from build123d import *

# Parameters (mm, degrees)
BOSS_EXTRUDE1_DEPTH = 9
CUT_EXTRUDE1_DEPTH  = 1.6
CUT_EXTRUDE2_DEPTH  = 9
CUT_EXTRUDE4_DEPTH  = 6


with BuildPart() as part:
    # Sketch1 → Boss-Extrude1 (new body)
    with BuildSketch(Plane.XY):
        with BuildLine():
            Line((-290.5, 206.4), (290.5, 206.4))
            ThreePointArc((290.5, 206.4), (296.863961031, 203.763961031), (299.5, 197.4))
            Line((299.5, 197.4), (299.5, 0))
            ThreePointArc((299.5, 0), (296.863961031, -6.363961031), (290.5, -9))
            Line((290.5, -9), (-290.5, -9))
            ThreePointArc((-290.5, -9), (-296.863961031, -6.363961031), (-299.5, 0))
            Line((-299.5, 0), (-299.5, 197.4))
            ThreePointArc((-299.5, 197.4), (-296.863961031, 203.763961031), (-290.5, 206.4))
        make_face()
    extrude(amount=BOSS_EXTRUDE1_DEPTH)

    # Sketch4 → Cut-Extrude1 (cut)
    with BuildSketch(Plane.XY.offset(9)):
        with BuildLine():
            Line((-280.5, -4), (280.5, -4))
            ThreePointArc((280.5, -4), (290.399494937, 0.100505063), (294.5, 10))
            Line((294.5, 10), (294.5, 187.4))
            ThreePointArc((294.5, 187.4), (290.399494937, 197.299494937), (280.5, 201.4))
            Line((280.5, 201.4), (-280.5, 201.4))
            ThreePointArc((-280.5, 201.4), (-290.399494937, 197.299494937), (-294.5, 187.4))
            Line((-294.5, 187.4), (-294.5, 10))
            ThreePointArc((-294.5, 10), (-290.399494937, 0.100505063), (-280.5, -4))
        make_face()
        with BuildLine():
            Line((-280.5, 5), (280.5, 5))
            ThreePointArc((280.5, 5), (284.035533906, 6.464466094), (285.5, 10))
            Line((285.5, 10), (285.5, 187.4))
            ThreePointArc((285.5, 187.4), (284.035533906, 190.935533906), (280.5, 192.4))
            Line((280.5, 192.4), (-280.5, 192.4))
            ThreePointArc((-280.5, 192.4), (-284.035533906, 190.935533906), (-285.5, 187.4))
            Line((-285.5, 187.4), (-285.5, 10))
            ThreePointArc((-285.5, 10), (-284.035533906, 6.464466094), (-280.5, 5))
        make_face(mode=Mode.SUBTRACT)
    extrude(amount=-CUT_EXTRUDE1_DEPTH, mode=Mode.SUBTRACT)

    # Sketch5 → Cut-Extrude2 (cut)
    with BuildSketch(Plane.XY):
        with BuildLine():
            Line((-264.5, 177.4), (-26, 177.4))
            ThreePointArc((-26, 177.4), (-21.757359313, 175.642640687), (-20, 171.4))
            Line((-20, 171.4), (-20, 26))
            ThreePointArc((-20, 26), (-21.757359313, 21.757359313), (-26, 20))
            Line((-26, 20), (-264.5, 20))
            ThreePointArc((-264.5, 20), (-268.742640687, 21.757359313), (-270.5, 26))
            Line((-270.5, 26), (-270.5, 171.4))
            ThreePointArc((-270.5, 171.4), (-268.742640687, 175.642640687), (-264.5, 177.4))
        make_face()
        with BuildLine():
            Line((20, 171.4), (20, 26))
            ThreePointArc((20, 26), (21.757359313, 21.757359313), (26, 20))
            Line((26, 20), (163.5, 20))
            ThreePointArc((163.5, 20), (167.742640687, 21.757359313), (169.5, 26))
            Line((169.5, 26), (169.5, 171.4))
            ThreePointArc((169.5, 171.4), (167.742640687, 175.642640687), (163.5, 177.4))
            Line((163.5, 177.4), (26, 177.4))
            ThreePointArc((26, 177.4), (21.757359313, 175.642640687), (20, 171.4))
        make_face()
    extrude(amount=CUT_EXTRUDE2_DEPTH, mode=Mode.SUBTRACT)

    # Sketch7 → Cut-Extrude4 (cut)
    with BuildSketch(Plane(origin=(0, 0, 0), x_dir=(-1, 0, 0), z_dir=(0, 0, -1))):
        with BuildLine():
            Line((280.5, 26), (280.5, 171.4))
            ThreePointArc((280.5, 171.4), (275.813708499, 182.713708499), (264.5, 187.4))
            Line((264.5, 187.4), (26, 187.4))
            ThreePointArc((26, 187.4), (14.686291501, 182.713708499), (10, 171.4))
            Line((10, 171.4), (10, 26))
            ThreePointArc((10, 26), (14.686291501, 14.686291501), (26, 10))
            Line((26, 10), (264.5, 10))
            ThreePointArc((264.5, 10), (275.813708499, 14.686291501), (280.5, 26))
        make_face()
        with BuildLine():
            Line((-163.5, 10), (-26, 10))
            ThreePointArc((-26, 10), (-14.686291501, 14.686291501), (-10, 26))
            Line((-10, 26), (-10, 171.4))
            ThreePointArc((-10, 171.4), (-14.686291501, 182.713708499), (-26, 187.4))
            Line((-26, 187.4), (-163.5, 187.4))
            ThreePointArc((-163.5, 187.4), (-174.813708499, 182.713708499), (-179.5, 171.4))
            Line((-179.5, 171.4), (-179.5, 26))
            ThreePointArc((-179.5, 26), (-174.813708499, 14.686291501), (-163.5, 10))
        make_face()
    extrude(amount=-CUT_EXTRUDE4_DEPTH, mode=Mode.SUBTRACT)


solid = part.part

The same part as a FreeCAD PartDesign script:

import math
import FreeCAD as App
import Part
import Sketcher
from FreeCAD import Vector
Q = App.Units.Quantity

doc = App.newDocument("Part")
body = doc.addObject("PartDesign::Body", "Body")

# Sketch on XY plane
sketch1 = body.newObject("Sketcher::SketchObject", "Sketch")
sketch1.AttachmentSupport = (doc.getObject("XY_Plane"), [""])
sketch1.MapMode = "FlatFace"
sketch1.addGeometry(Part.LineSegment(Vector(290.5, 206.4, 0), Vector(-290.5, 206.4, 0)), False)
sketch1.addGeometry(Part.ArcOfCircle(Part.Circle(Vector(-290.5, 197.4, 0), Vector(0, 0, 1), 9), math.radians(90), math.radians(180)), False)
sketch1.addGeometry(Part.LineSegment(Vector(-299.5, 197.4, 0), Vector(-299.5, 0, 0)), False)
sketch1.addGeometry(Part.ArcOfCircle(Part.Circle(Vector(-290.5, 0, 0), Vector(0, 0, 1), 9), math.radians(180), math.radians(270)), False)
sketch1.addGeometry(Part.LineSegment(Vector(-290.5, -9, 0), Vector(290.5, -9, 0)), False)
sketch1.addGeometry(Part.ArcOfCircle(Part.Circle(Vector(290.5, 0, 0), Vector(0, 0, 1), 9), math.radians(-90), math.radians(0)), False)
sketch1.addGeometry(Part.LineSegment(Vector(299.5, 0, 0), Vector(299.5, 197.4, 0)), False)
sketch1.addGeometry(Part.ArcOfCircle(Part.Circle(Vector(290.5, 197.4, 0), Vector(0, 0, 1), 9), math.radians(0), math.radians(90)), False)
sketch1.addConstraint(Sketcher.Constraint("Tangent", 0, 2, 1, 1))
sketch1.addConstraint(Sketcher.Constraint("Tangent", 1, 2, 2, 1))
sketch1.addConstraint(Sketcher.Constraint("Tangent", 2, 2, 3, 1))
sketch1.addConstraint(Sketcher.Constraint("Tangent", 3, 2, 4, 1))
sketch1.addConstraint(Sketcher.Constraint("Tangent", 4, 2, 5, 1))
sketch1.addConstraint(Sketcher.Constraint("Tangent", 5, 2, 6, 1))
sketch1.addConstraint(Sketcher.Constraint("Tangent", 6, 2, 7, 1))
sketch1.addConstraint(Sketcher.Constraint("Tangent", 7, 2, 0, 1))
sketch1.addConstraint(Sketcher.Constraint("Horizontal", 0))
sketch1.addConstraint(Sketcher.Constraint("Vertical", 2))
sketch1.addConstraint(Sketcher.Constraint("Horizontal", 4))
sketch1.addConstraint(Sketcher.Constraint("Vertical", 6))
sketch1.addConstraint(Sketcher.Constraint("Equal", 1, 3))
sketch1.addConstraint(Sketcher.Constraint("Equal", 3, 5))
sketch1.addConstraint(Sketcher.Constraint("Equal", 5, 7))
sketch1.addConstraint(Sketcher.Constraint("Symmetric", 3, 3, 5, 3, -1, 1))
sketch1.addConstraint(Sketcher.Constraint("Radius", 1, Q("9 mm")))
sketch1.addConstraint(Sketcher.Constraint("DistanceX", 0, 2, 0, 1, Q("581 mm")))
sketch1.addConstraint(Sketcher.Constraint("DistanceY", 2, 2, 2, 1, Q("197.4 mm")))
pad1 = body.newObject("PartDesign::Pad", "Pad")
pad1.Profile = sketch1
pad1.Length = 9

# Sketch on XY plane
sketch2 = body.newObject("Sketcher::SketchObject", "Sketch001")
sketch2.AttachmentSupport = (doc.getObject("XY_Plane"), [""])
sketch2.MapMode = "FlatFace"
sketch2.AttachmentOffset = App.Placement(Vector(0, 0, 9), App.Rotation())
sketch2.addGeometry(Part.LineSegment(Vector(-280.5, -4, 0), Vector(280.5, -4, 0)), False)
sketch2.addGeometry(Part.ArcOfCircle(Part.Circle(Vector(280.5, 10, 0), Vector(0, 0, 1), 14), math.radians(-90), math.radians(0)), False)
sketch2.addGeometry(Part.LineSegment(Vector(294.5, 10, 0), Vector(294.5, 187.4, 0)), False)
sketch2.addGeometry(Part.ArcOfCircle(Part.Circle(Vector(280.5, 187.4, 0), Vector(0, 0, 1), 14), math.radians(0), math.radians(90)), False)
sketch2.addGeometry(Part.LineSegment(Vector(280.5, 201.4, 0), Vector(-280.5, 201.4, 0)), False)
sketch2.addGeometry(Part.ArcOfCircle(Part.Circle(Vector(-280.5, 187.4, 0), Vector(0, 0, 1), 14), math.radians(90), math.radians(180)), False)
sketch2.addGeometry(Part.LineSegment(Vector(-294.5, 187.4, 0), Vector(-294.5, 10, 0)), False)
sketch2.addGeometry(Part.ArcOfCircle(Part.Circle(Vector(-280.5, 10, 0), Vector(0, 0, 1), 14), math.radians(180), math.radians(270)), False)
sketch2.addGeometry(Part.LineSegment(Vector(280.5, 5, 0), Vector(-280.5, 5, 0)), False)
sketch2.addGeometry(Part.ArcOfCircle(Part.Circle(Vector(-280.5, 10, 0), Vector(0, 0, 1), 5), math.radians(180), math.radians(270)), False)
sketch2.addGeometry(Part.LineSegment(Vector(-285.5, 10, 0), Vector(-285.5, 187.4, 0)), False)
sketch2.addGeometry(Part.ArcOfCircle(Part.Circle(Vector(-280.5, 187.4, 0), Vector(0, 0, 1), 5), math.radians(90), math.radians(180)), False)
sketch2.addGeometry(Part.LineSegment(Vector(-280.5, 192.4, 0), Vector(280.5, 192.4, 0)), False)
sketch2.addGeometry(Part.ArcOfCircle(Part.Circle(Vector(280.5, 187.4, 0), Vector(0, 0, 1), 5), math.radians(0), math.radians(90)), False)
sketch2.addGeometry(Part.LineSegment(Vector(285.5, 187.4, 0), Vector(285.5, 10, 0)), False)
sketch2.addGeometry(Part.ArcOfCircle(Part.Circle(Vector(280.5, 10, 0), Vector(0, 0, 1), 5), math.radians(-90), math.radians(0)), False)
sketch2.addConstraint(Sketcher.Constraint("Tangent", 0, 2, 1, 1))
sketch2.addConstraint(Sketcher.Constraint("Tangent", 1, 2, 2, 1))
sketch2.addConstraint(Sketcher.Constraint("Tangent", 2, 2, 3, 1))
sketch2.addConstraint(Sketcher.Constraint("Tangent", 3, 2, 4, 1))
sketch2.addConstraint(Sketcher.Constraint("Tangent", 4, 2, 5, 1))
sketch2.addConstraint(Sketcher.Constraint("Tangent", 5, 2, 6, 1))
sketch2.addConstraint(Sketcher.Constraint("Tangent", 6, 2, 7, 1))
sketch2.addConstraint(Sketcher.Constraint("Tangent", 7, 2, 0, 1))
sketch2.addConstraint(Sketcher.Constraint("Tangent", 8, 2, 9, 2))
sketch2.addConstraint(Sketcher.Constraint("Tangent", 9, 1, 10, 1))
sketch2.addConstraint(Sketcher.Constraint("Tangent", 10, 2, 11, 2))
sketch2.addConstraint(Sketcher.Constraint("Tangent", 11, 1, 12, 1))
sketch2.addConstraint(Sketcher.Constraint("Tangent", 12, 2, 13, 2))
sketch2.addConstraint(Sketcher.Constraint("Tangent", 13, 1, 14, 1))
sketch2.addConstraint(Sketcher.Constraint("Tangent", 14, 2, 15, 2))
sketch2.addConstraint(Sketcher.Constraint("Tangent", 15, 1, 8, 1))
sketch2.addConstraint(Sketcher.Constraint("Horizontal", 0))
sketch2.addConstraint(Sketcher.Constraint("Vertical", 2))
sketch2.addConstraint(Sketcher.Constraint("Horizontal", 4))
sketch2.addConstraint(Sketcher.Constraint("Vertical", 6))
sketch2.addConstraint(Sketcher.Constraint("Horizontal", 8))
sketch2.addConstraint(Sketcher.Constraint("Vertical", 10))
sketch2.addConstraint(Sketcher.Constraint("Horizontal", 12))
sketch2.addConstraint(Sketcher.Constraint("Vertical", 14))
sketch2.addConstraint(Sketcher.Constraint("Coincident", 9, 3, 7, 3))
sketch2.addConstraint(Sketcher.Constraint("Coincident", 11, 3, 5, 3))
sketch2.addConstraint(Sketcher.Constraint("Coincident", 13, 3, 3, 3))
sketch2.addConstraint(Sketcher.Constraint("Equal", 1, 3))
sketch2.addConstraint(Sketcher.Constraint("Equal", 3, 5))
sketch2.addConstraint(Sketcher.Constraint("Equal", 5, 7))
sketch2.addConstraint(Sketcher.Constraint("Equal", 13, 15))
sketch2.addConstraint(Sketcher.Constraint("Radius", 1, Q("14 mm")))
sketch2.addConstraint(Sketcher.Constraint("Radius", 9, Q("5 mm")))
sketch2.addConstraint(Sketcher.Constraint("DistanceX", 0, 1, 0, 2, Q("561 mm")))
sketch2.addConstraint(Sketcher.Constraint("DistanceY", 2, 1, 2, 2, Q("177.4 mm")))
sketch2.addConstraint(Sketcher.Constraint("DistanceY", -1, 1, 1, 3, Q("10 mm")))
sketch2.addConstraint(Sketcher.Constraint("DistanceX", -1, 1, 1, 3, Q("280.5 mm")))
pocket1 = body.newObject("PartDesign::Pocket", "Pocket")
pocket1.Profile = sketch2
pocket1.Length = 1.6

# Sketch on XY plane
sketch3 = body.newObject("Sketcher::SketchObject", "Sketch002")
sketch3.AttachmentSupport = (doc.getObject("XY_Plane"), [""])
sketch3.MapMode = "FlatFace"
sketch3.addGeometry(Part.LineSegment(Vector(-26, 177.4, 0), Vector(-264.5, 177.4, 0)), False)
sketch3.addGeometry(Part.ArcOfCircle(Part.Circle(Vector(-264.5, 171.4, 0), Vector(0, 0, 1), 6), math.radians(90), math.radians(180)), False)
sketch3.addGeometry(Part.LineSegment(Vector(-270.5, 171.4, 0), Vector(-270.5, 26, 0)), False)
sketch3.addGeometry(Part.ArcOfCircle(Part.Circle(Vector(-264.5, 26, 0), Vector(0, 0, 1), 6), math.radians(180), math.radians(270)), False)
sketch3.addGeometry(Part.LineSegment(Vector(-264.5, 20, 0), Vector(-26, 20, 0)), False)
sketch3.addGeometry(Part.ArcOfCircle(Part.Circle(Vector(-26, 26, 0), Vector(0, 0, 1), 6), math.radians(-90), math.radians(0)), False)
sketch3.addGeometry(Part.LineSegment(Vector(-20, 26, 0), Vector(-20, 171.4, 0)), False)
sketch3.addGeometry(Part.ArcOfCircle(Part.Circle(Vector(-26, 171.4, 0), Vector(0, 0, 1), 6), math.radians(0), math.radians(90)), False)
sketch3.addGeometry(Part.LineSegment(Vector(20, 171.4, 0), Vector(20, 26, 0)), False)
sketch3.addGeometry(Part.ArcOfCircle(Part.Circle(Vector(26, 26, 0), Vector(0, 0, 1), 6), math.radians(180), math.radians(270)), False)
sketch3.addGeometry(Part.LineSegment(Vector(26, 20, 0), Vector(163.5, 20, 0)), False)
sketch3.addGeometry(Part.ArcOfCircle(Part.Circle(Vector(163.5, 26, 0), Vector(0, 0, 1), 6), math.radians(-90), math.radians(0)), False)
sketch3.addGeometry(Part.LineSegment(Vector(169.5, 26, 0), Vector(169.5, 171.4, 0)), False)
sketch3.addGeometry(Part.ArcOfCircle(Part.Circle(Vector(163.5, 171.4, 0), Vector(0, 0, 1), 6), math.radians(0), math.radians(90)), False)
sketch3.addGeometry(Part.LineSegment(Vector(163.5, 177.4, 0), Vector(26, 177.4, 0)), False)
sketch3.addGeometry(Part.ArcOfCircle(Part.Circle(Vector(26, 171.4, 0), Vector(0, 0, 1), 6), math.radians(90), math.radians(180)), False)
sketch3.addConstraint(Sketcher.Constraint("Tangent", 0, 2, 1, 1))
sketch3.addConstraint(Sketcher.Constraint("Tangent", 1, 2, 2, 1))
sketch3.addConstraint(Sketcher.Constraint("Tangent", 2, 2, 3, 1))
sketch3.addConstraint(Sketcher.Constraint("Tangent", 3, 2, 4, 1))
sketch3.addConstraint(Sketcher.Constraint("Tangent", 4, 2, 5, 1))
sketch3.addConstraint(Sketcher.Constraint("Tangent", 5, 2, 6, 1))
sketch3.addConstraint(Sketcher.Constraint("Tangent", 6, 2, 7, 1))
sketch3.addConstraint(Sketcher.Constraint("Tangent", 7, 2, 0, 1))
sketch3.addConstraint(Sketcher.Constraint("Tangent", 8, 2, 9, 1))
sketch3.addConstraint(Sketcher.Constraint("Tangent", 9, 2, 10, 1))
sketch3.addConstraint(Sketcher.Constraint("Tangent", 10, 2, 11, 1))
sketch3.addConstraint(Sketcher.Constraint("Tangent", 11, 2, 12, 1))
sketch3.addConstraint(Sketcher.Constraint("Tangent", 12, 2, 13, 1))
sketch3.addConstraint(Sketcher.Constraint("Tangent", 13, 2, 14, 1))
sketch3.addConstraint(Sketcher.Constraint("Tangent", 14, 2, 15, 1))
sketch3.addConstraint(Sketcher.Constraint("Tangent", 15, 2, 8, 1))
sketch3.addConstraint(Sketcher.Constraint("Horizontal", 0))
sketch3.addConstraint(Sketcher.Constraint("Vertical", 2))
sketch3.addConstraint(Sketcher.Constraint("Horizontal", 4))
sketch3.addConstraint(Sketcher.Constraint("Vertical", 6))
sketch3.addConstraint(Sketcher.Constraint("Vertical", 8))
sketch3.addConstraint(Sketcher.Constraint("Horizontal", 10))
sketch3.addConstraint(Sketcher.Constraint("Vertical", 12))
sketch3.addConstraint(Sketcher.Constraint("Horizontal", 14))
sketch3.addConstraint(Sketcher.Constraint("Equal", 1, 3))
sketch3.addConstraint(Sketcher.Constraint("Equal", 3, 5))
sketch3.addConstraint(Sketcher.Constraint("Equal", 5, 7))
sketch3.addConstraint(Sketcher.Constraint("Equal", 7, 9))
sketch3.addConstraint(Sketcher.Constraint("Equal", 9, 11))
sketch3.addConstraint(Sketcher.Constraint("Equal", 11, 13))
sketch3.addConstraint(Sketcher.Constraint("Equal", 13, 15))
sketch3.addConstraint(Sketcher.Constraint("Symmetric", 5, 3, 9, 3, -2))
sketch3.addConstraint(Sketcher.Constraint("Horizontal", 7, 3, 13, 3))
sketch3.addConstraint(Sketcher.Constraint("Radius", 1, Q("6 mm")))
sketch3.addConstraint(Sketcher.Constraint("DistanceX", 0, 2, 0, 1, Q("238.5 mm")))
sketch3.addConstraint(Sketcher.Constraint("DistanceX", 10, 1, 10, 2, Q("137.5 mm")))
sketch3.addConstraint(Sketcher.Constraint("DistanceY", 2, 2, 2, 1, Q("145.4 mm")))
sketch3.addConstraint(Sketcher.Constraint("DistanceY", -1, 1, 3, 3, Q("26 mm")))
sketch3.addConstraint(Sketcher.Constraint("DistanceX", 5, 3, -1, 1, Q("26 mm")))
pocket2 = body.newObject("PartDesign::Pocket", "Pocket001")
pocket2.Profile = sketch3
pocket2.Length = 9
pocket2.Reversed = True

# Sketch on XY plane
sketch4 = body.newObject("Sketcher::SketchObject", "Sketch003")
sketch4.AttachmentSupport = (doc.getObject("XY_Plane"), [""])
sketch4.MapMode = "FlatFace"
sketch4.addGeometry(Part.LineSegment(Vector(-280.5, 26, 0), Vector(-280.5, 171.4, 0)), False)
sketch4.addGeometry(Part.ArcOfCircle(Part.Circle(Vector(-264.5, 171.4, 0), Vector(0, 0, 1), 16), math.radians(90), math.radians(180)), False)
sketch4.addGeometry(Part.LineSegment(Vector(-264.5, 187.4, 0), Vector(-26, 187.4, 0)), False)
sketch4.addGeometry(Part.ArcOfCircle(Part.Circle(Vector(-26, 171.4, 0), Vector(0, 0, 1), 16), math.radians(0), math.radians(90)), False)
sketch4.addGeometry(Part.LineSegment(Vector(-10, 171.4, 0), Vector(-10, 26, 0)), False)
sketch4.addGeometry(Part.ArcOfCircle(Part.Circle(Vector(-26, 26, 0), Vector(0, 0, 1), 16), math.radians(-90), math.radians(0)), False)
sketch4.addGeometry(Part.LineSegment(Vector(-26, 10, 0), Vector(-264.5, 10, 0)), False)
sketch4.addGeometry(Part.ArcOfCircle(Part.Circle(Vector(-264.5, 26, 0), Vector(0, 0, 1), 16), math.radians(180), math.radians(270)), False)
sketch4.addGeometry(Part.LineSegment(Vector(163.5, 10, 0), Vector(26, 10, 0)), False)
sketch4.addGeometry(Part.ArcOfCircle(Part.Circle(Vector(26, 26, 0), Vector(0, 0, 1), 16), math.radians(180), math.radians(270)), False)
sketch4.addGeometry(Part.LineSegment(Vector(10, 26, 0), Vector(10, 171.4, 0)), False)
sketch4.addGeometry(Part.ArcOfCircle(Part.Circle(Vector(26, 171.4, 0), Vector(0, 0, 1), 16), math.radians(90), math.radians(180)), False)
sketch4.addGeometry(Part.LineSegment(Vector(26, 187.4, 0), Vector(163.5, 187.4, 0)), False)
sketch4.addGeometry(Part.ArcOfCircle(Part.Circle(Vector(163.5, 171.4, 0), Vector(0, 0, 1), 16), math.radians(0), math.radians(90)), False)
sketch4.addGeometry(Part.LineSegment(Vector(179.5, 171.4, 0), Vector(179.5, 26, 0)), False)
sketch4.addGeometry(Part.ArcOfCircle(Part.Circle(Vector(163.5, 26, 0), Vector(0, 0, 1), 16), math.radians(-90), math.radians(0)), False)
sketch4.addConstraint(Sketcher.Constraint("Tangent", 0, 2, 1, 2))
sketch4.addConstraint(Sketcher.Constraint("Tangent", 1, 1, 2, 1))
sketch4.addConstraint(Sketcher.Constraint("Tangent", 2, 2, 3, 2))
sketch4.addConstraint(Sketcher.Constraint("Tangent", 3, 1, 4, 1))
sketch4.addConstraint(Sketcher.Constraint("Tangent", 4, 2, 5, 2))
sketch4.addConstraint(Sketcher.Constraint("Tangent", 5, 1, 6, 1))
sketch4.addConstraint(Sketcher.Constraint("Tangent", 6, 2, 7, 2))
sketch4.addConstraint(Sketcher.Constraint("Tangent", 7, 1, 0, 1))
sketch4.addConstraint(Sketcher.Constraint("Tangent", 8, 2, 9, 2))
sketch4.addConstraint(Sketcher.Constraint("Tangent", 9, 1, 10, 1))
sketch4.addConstraint(Sketcher.Constraint("Tangent", 10, 2, 11, 2))
sketch4.addConstraint(Sketcher.Constraint("Tangent", 11, 1, 12, 1))
sketch4.addConstraint(Sketcher.Constraint("Tangent", 12, 2, 13, 2))
sketch4.addConstraint(Sketcher.Constraint("Tangent", 13, 1, 14, 1))
sketch4.addConstraint(Sketcher.Constraint("Tangent", 14, 2, 15, 2))
sketch4.addConstraint(Sketcher.Constraint("Tangent", 15, 1, 8, 1))
sketch4.addConstraint(Sketcher.Constraint("Vertical", 0))
sketch4.addConstraint(Sketcher.Constraint("Horizontal", 2))
sketch4.addConstraint(Sketcher.Constraint("Vertical", 4))
sketch4.addConstraint(Sketcher.Constraint("Horizontal", 6))
sketch4.addConstraint(Sketcher.Constraint("Horizontal", 8))
sketch4.addConstraint(Sketcher.Constraint("Vertical", 10))
sketch4.addConstraint(Sketcher.Constraint("Horizontal", 12))
sketch4.addConstraint(Sketcher.Constraint("Vertical", 14))
sketch4.addConstraint(Sketcher.Constraint("Equal", 1, 3))
sketch4.addConstraint(Sketcher.Constraint("Equal", 3, 5))
sketch4.addConstraint(Sketcher.Constraint("Equal", 5, 7))
sketch4.addConstraint(Sketcher.Constraint("Equal", 7, 9))
sketch4.addConstraint(Sketcher.Constraint("Equal", 9, 11))
sketch4.addConstraint(Sketcher.Constraint("Equal", 11, 13))
sketch4.addConstraint(Sketcher.Constraint("Equal", 13, 15))
sketch4.addConstraint(Sketcher.Constraint("Symmetric", 5, 3, 9, 3, -2))
sketch4.addConstraint(Sketcher.Constraint("Horizontal", 3, 3, 11, 3))
sketch4.addConstraint(Sketcher.Constraint("Radius", 1, Q("16 mm")))
sketch4.addConstraint(Sketcher.Constraint("DistanceX", 2, 1, 2, 2, Q("238.5 mm")))
sketch4.addConstraint(Sketcher.Constraint("DistanceX", 8, 2, 8, 1, Q("137.5 mm")))
sketch4.addConstraint(Sketcher.Constraint("DistanceY", 0, 1, 0, 2, Q("145.4 mm")))
sketch4.addConstraint(Sketcher.Constraint("DistanceX", 3, 3, -1, 1, Q("26 mm")))
sketch4.addConstraint(Sketcher.Constraint("DistanceY", -1, 1, 5, 3, Q("26 mm")))
pocket3 = body.newObject("PartDesign::Pocket", "Pocket002")
pocket3.Profile = sketch4
pocket3.Length = 6
pocket3.Reversed = True

doc.recompute()
